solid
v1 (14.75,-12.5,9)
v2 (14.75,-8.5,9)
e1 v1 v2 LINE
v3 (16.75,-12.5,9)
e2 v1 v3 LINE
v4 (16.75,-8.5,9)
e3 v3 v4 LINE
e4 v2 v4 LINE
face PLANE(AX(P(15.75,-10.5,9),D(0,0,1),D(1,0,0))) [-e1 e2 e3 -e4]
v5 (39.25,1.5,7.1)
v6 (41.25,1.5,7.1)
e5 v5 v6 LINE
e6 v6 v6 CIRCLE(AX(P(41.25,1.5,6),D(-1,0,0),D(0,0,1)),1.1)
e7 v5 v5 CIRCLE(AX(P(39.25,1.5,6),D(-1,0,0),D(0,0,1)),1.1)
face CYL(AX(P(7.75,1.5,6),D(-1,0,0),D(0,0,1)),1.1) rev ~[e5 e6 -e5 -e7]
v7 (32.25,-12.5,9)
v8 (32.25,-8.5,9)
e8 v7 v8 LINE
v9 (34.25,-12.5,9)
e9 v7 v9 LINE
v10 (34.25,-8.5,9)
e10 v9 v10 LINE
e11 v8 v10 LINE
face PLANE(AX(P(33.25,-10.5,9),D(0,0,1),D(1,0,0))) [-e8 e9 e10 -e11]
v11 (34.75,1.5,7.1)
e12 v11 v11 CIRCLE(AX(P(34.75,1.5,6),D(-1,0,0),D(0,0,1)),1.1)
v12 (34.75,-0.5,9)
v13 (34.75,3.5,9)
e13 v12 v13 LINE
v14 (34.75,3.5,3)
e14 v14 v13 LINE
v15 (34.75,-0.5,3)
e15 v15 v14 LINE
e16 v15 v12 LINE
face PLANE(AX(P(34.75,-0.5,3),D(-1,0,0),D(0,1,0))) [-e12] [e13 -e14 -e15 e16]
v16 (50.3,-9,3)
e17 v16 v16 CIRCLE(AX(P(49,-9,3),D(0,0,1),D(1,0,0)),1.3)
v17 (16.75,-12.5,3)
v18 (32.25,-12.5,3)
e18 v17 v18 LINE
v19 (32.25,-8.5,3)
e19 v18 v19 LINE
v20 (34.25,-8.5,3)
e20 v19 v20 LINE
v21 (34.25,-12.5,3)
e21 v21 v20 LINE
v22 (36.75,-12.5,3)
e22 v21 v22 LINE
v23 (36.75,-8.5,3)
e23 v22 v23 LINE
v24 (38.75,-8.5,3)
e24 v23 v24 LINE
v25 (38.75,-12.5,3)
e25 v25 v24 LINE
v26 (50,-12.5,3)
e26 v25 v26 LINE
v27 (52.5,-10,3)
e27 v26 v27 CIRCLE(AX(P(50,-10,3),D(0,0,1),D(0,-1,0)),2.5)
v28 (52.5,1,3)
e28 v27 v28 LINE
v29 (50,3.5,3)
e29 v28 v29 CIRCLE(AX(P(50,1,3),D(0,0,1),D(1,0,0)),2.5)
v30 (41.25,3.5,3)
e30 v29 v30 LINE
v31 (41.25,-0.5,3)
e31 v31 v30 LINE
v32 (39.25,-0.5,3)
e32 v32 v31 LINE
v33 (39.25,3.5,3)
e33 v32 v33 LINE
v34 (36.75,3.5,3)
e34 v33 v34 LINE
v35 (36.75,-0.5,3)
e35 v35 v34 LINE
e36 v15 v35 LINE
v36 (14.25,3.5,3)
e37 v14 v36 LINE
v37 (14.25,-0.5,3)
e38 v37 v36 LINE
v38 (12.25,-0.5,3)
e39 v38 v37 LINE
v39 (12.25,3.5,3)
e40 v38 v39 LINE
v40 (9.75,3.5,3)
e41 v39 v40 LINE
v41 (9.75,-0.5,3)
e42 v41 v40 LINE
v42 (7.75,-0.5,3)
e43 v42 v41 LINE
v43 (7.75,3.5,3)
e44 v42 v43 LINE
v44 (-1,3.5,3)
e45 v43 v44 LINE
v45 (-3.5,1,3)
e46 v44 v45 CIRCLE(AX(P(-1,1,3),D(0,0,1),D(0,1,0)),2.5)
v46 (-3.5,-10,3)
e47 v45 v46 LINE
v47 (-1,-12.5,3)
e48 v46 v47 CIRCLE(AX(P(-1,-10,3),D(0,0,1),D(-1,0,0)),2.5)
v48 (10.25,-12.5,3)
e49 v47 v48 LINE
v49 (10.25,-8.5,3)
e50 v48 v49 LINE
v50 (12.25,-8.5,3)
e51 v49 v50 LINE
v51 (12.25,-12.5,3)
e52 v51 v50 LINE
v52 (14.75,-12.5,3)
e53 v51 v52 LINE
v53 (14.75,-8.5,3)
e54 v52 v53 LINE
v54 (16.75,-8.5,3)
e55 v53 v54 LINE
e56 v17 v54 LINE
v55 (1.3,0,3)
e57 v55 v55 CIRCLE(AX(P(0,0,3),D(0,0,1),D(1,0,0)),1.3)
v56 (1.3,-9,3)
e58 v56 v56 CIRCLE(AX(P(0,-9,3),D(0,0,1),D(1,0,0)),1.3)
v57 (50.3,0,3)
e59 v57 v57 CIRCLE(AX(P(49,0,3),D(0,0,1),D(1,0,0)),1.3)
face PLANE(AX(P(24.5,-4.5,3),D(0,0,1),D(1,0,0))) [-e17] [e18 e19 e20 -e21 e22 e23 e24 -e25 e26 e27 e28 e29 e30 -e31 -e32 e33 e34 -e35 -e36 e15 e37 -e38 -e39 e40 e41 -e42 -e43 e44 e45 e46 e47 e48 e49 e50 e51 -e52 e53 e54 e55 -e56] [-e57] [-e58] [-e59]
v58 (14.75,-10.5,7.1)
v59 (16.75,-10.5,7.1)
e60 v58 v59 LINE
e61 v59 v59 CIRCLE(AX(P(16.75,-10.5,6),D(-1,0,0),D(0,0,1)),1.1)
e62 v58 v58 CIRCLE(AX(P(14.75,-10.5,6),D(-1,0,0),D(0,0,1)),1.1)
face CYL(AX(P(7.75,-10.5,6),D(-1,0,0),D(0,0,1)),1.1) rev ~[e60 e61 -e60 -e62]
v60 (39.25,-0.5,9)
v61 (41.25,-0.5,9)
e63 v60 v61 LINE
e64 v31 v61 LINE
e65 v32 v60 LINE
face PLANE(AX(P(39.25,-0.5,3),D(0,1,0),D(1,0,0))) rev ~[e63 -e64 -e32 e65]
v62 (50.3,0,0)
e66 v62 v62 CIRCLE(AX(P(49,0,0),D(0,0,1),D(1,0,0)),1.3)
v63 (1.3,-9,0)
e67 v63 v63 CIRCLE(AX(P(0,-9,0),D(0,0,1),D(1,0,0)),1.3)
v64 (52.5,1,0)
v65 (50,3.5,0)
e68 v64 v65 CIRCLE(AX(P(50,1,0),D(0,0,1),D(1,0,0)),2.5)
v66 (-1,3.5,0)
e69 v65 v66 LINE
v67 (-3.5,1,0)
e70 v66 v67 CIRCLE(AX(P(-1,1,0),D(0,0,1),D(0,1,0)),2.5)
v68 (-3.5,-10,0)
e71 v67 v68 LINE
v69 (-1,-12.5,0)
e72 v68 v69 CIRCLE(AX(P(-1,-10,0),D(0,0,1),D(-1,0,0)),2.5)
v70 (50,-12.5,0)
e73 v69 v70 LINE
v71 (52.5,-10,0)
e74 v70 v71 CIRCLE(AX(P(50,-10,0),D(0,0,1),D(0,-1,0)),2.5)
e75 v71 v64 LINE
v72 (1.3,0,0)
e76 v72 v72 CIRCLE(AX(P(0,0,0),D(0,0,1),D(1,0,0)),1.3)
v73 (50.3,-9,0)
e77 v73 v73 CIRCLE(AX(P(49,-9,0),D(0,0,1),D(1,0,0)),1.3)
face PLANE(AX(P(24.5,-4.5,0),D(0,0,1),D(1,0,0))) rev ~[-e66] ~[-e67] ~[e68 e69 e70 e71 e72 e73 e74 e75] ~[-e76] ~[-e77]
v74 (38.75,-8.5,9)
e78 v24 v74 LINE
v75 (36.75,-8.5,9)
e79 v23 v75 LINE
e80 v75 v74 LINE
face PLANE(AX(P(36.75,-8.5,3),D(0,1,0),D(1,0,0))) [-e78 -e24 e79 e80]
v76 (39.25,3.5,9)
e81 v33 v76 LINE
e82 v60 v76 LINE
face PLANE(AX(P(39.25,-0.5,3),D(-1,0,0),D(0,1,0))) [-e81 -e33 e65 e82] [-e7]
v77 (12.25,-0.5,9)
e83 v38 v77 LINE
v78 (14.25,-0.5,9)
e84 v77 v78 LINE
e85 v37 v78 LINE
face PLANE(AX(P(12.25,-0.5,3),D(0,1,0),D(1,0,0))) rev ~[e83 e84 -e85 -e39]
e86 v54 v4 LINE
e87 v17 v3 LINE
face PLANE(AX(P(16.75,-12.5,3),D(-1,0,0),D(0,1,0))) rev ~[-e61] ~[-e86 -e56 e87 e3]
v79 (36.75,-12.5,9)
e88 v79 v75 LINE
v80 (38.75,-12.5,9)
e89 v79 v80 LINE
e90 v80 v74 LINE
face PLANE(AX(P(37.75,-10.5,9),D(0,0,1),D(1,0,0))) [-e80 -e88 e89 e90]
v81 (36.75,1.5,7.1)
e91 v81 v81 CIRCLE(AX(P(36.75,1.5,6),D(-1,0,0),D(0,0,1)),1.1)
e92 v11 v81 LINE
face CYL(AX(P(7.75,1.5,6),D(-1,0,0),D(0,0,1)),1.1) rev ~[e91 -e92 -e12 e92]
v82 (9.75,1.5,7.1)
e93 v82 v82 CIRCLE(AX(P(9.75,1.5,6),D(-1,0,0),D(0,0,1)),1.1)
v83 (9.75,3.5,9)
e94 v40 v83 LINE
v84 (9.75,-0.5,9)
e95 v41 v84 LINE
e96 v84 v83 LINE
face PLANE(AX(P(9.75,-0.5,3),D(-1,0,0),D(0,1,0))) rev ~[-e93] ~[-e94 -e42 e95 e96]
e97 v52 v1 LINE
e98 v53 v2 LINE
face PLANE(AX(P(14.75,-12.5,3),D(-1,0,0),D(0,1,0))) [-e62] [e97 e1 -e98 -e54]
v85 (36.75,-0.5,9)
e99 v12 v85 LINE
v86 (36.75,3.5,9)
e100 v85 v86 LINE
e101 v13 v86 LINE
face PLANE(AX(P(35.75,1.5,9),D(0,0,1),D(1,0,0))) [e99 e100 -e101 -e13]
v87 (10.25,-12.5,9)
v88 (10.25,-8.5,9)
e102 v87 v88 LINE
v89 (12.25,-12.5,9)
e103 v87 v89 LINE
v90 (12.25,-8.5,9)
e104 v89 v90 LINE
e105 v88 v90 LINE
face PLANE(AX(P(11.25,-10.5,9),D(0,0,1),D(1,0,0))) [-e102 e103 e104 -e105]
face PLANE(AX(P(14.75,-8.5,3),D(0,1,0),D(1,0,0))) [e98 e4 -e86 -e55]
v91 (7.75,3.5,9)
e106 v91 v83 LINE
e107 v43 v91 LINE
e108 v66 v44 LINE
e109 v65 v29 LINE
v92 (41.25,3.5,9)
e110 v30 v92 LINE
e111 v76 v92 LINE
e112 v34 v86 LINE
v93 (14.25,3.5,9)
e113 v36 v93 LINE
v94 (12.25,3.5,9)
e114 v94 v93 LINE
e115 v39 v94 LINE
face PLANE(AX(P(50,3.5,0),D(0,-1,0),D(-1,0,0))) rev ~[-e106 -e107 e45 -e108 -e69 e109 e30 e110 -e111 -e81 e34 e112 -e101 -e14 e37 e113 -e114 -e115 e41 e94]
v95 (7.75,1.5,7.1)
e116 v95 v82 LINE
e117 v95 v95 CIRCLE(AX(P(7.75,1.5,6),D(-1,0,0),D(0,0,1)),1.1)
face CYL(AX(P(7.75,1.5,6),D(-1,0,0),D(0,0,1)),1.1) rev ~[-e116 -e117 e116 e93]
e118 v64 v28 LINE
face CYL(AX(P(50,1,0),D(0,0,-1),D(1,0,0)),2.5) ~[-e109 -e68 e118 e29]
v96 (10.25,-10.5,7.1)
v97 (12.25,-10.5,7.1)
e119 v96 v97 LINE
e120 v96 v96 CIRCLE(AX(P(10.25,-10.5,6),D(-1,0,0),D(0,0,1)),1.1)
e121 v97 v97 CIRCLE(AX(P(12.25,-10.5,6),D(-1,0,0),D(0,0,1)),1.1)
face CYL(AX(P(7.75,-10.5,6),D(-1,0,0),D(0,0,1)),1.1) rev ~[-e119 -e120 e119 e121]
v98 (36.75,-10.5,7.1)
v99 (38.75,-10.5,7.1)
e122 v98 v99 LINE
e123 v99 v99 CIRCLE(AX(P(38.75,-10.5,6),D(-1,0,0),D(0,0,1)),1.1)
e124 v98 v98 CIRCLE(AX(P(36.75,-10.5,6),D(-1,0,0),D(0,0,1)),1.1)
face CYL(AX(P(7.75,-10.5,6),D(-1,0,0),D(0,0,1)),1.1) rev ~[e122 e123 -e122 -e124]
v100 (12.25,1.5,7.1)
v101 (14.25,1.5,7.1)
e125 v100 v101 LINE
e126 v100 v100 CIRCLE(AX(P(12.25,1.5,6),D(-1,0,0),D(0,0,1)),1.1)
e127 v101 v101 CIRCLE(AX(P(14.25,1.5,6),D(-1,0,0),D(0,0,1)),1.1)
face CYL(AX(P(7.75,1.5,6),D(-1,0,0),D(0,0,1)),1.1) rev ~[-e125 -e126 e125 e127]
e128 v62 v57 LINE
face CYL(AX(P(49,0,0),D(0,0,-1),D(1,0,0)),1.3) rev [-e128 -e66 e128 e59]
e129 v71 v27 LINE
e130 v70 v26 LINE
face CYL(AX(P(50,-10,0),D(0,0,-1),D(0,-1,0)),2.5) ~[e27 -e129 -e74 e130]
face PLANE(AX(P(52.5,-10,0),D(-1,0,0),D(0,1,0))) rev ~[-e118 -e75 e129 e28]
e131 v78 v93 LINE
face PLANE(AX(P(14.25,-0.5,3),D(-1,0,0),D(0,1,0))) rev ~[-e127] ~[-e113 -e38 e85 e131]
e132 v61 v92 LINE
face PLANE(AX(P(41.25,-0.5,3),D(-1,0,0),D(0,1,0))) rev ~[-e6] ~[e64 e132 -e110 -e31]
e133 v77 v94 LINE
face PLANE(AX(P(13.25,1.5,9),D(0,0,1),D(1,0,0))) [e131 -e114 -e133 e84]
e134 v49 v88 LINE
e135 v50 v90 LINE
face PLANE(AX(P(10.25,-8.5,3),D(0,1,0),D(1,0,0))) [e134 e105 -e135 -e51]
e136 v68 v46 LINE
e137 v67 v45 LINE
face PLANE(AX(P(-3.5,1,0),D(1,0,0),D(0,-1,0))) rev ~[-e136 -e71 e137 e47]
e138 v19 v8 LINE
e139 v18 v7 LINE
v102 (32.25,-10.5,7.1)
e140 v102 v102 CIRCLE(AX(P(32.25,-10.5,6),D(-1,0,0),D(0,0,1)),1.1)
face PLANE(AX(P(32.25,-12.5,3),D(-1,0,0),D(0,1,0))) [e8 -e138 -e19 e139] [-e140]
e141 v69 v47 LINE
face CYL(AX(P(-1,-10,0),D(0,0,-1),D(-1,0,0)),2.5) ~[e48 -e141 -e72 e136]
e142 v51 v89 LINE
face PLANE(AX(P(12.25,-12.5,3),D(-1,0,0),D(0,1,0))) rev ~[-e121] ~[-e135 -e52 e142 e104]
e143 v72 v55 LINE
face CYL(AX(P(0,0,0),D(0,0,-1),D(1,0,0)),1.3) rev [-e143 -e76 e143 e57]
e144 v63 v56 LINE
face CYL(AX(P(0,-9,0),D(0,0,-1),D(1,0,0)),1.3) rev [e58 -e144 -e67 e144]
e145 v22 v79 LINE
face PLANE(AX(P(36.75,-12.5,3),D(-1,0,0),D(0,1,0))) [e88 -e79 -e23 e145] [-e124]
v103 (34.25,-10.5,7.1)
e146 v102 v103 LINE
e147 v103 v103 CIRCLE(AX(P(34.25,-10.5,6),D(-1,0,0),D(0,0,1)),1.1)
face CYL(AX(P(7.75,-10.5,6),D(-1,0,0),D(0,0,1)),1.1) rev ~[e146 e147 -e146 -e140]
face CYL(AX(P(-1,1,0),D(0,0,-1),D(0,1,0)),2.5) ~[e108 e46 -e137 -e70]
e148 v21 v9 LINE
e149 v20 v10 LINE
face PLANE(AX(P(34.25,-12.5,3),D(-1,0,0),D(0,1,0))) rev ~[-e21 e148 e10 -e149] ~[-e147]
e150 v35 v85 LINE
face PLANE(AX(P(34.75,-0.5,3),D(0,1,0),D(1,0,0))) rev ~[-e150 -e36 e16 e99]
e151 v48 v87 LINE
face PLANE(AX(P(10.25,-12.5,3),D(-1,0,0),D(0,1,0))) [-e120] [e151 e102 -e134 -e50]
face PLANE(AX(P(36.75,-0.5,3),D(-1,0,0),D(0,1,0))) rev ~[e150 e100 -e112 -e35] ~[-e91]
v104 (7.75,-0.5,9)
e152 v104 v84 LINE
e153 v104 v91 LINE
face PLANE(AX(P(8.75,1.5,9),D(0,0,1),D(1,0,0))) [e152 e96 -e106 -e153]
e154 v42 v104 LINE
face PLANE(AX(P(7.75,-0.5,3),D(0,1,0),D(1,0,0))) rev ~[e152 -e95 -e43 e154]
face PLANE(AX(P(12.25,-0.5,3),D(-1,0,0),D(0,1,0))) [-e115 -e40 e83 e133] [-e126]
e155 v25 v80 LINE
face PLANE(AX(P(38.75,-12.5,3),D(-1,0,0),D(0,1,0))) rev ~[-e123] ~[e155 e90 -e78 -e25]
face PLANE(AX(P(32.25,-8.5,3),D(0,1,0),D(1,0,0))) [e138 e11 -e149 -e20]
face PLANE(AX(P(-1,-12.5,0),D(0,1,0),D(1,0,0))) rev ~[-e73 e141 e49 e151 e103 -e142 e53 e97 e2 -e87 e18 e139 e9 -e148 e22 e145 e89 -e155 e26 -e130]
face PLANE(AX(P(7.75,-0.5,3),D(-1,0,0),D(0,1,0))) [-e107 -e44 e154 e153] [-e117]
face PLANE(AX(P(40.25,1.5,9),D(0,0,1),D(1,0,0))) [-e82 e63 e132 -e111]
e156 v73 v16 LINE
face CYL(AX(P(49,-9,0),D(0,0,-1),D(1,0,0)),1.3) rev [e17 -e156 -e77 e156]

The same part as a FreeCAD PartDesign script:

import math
import FreeCAD as App
import Part
import Sketcher

V = App.Vector
Q = App.Units.Quantity


def add_polygon(sketch, points):
    """Adds a closed chain of lines whose ends are joined by coincident constraints."""
    first, n = sketch.GeometryCount, len(points)
    for a, b in zip(points, points[1:] + points[:1]):
        sketch.addGeometry(Part.LineSegment(App.Vector(*a, 0), App.Vector(*b, 0)), False)
    for i in range(n):
        sketch.addConstraint(Sketcher.Constraint("Coincident", first + i, 2, first + (i + 1) % n, 1))

doc = App.newDocument("Part")
body = doc.addObject("PartDesign::Body", "Body")

# Sketch on XY plane
sketch1 = doc.addObject("Sketcher::SketchObject", "Sketch")
body.addObject(sketch1)
sketch1.AttachmentSupport = (doc.XY_Plane, [""])
sketch1.MapMode = "FlatFace"
sketch1.addGeometry(Part.ArcOfCircle(Part.Circle(V(-1, -10, 0), V(0, 0, 1), 2.5), math.radians(180), math.radians(270)), False)
sketch1.addGeometry(Part.LineSegment(V(-1, -12.5, 0), V(50, -12.5, 0)), False)
sketch1.addGeometry(Part.ArcOfCircle(Part.Circle(V(50, -10, 0), V(0, 0, 1), 2.5), math.radians(-90), math.radians(0)), False)
sketch1.addGeometry(Part.LineSegment(V(52.5, -10, 0), V(52.5, 1, 0)), False)
sketch1.addGeometry(Part.ArcOfCircle(Part.Circle(V(50, 1, 0), V(0, 0, 1), 2.5), math.radians(0), math.radians(90)), False)
sketch1.addGeometry(Part.LineSegment(V(50, 3.5, 0), V(-1, 3.5, 0)), False)
sketch1.addGeometry(Part.ArcOfCircle(Part.Circle(V(-1, 1, 0), V(0, 0, 1), 2.5), math.radians(90), math.radians(180)), False)
sketch1.addGeometry(Part.LineSegment(V(-3.5, 1, 0), V(-3.5, -10, 0)), False)
sketch1.addGeometry(Part.Circle(V(0, -9, 0), V(0, 0, 1), 1.3), False)
sketch1.addGeometry(Part.Circle(V(49, -9, 0), V(0, 0, 1), 1.3), False)
sketch1.addGeometry(Part.Circle(V(0, 0, 0), V(0, 0, 1), 1.3), False)
sketch1.addGeometry(Part.Circle(V(49, 0, 0), V(0, 0, 1), 1.3), False)
sketch1.addConstraint(Sketcher.Constraint("Tangent", 0, 2, 1, 1))
sketch1.addConstraint(Sketcher.Constraint("Tangent", 1, 2, 2, 1))
sketch1.addConstraint(Sketcher.Constraint("Tangent", 2, 2, 3, 1))
sketch1.addConstraint(Sketcher.Constraint("Tangent", 3, 2, 4, 1))
sketch1.addConstraint(Sketcher.Constraint("Tangent", 4, 2, 5, 1))
sketch1.addConstraint(Sketcher.Constraint("Tangent", 5, 2, 6, 1))
sketch1.addConstraint(Sketcher.Constraint("Tangent", 6, 2, 7, 1))
sketch1.addConstraint(Sketcher.Constraint("Tangent", 7, 2, 0, 1))
sketch1.addConstraint(Sketcher.Constraint("Horizontal", 1))
sketch1.addConstraint(Sketcher.Constraint("Vertical", 3))
sketch1.addConstraint(Sketcher.Constraint("Horizontal", 5))
sketch1.addConstraint(Sketcher.Constraint("Vertical", 7))
sketch1.addConstraint(Sketcher.Constraint("Coincident", 10, 3, -1, 1))
sketch1.addConstraint(Sketcher.Constraint("Equal", 0, 2))
sketch1.addConstraint(Sketcher.Constraint("Equal", 2, 4))
sketch1.addConstraint(Sketcher.Constraint("Equal", 4, 6))
sketch1.addConstraint(Sketcher.Constraint("Equal", 8, 9))
sketch1.addConstraint(Sketcher.Constraint("Equal", 9, 10))
sketch1.addConstraint(Sketcher.Constraint("Equal", 10, 11))
sketch1.addConstraint(Sketcher.Constraint("PointOnObject", 8, 3, -2))
sketch1.addConstraint(Sketcher.Constraint("PointOnObject", 11, 3, -1))
sketch1.addConstraint(Sketcher.Constraint("Horizontal", 8, 3, 9, 3))
sketch1.addConstraint(Sketcher.Constraint("Vertical", 9, 3, 11, 3))
sketch1.addConstraint(Sketcher.Constraint("Diameter", 8, Q("2.6 mm")))
sketch1.addConstraint(Sketcher.Constraint("Radius", 0, Q("2.5 mm")))
sketch1.addConstraint(Sketcher.Constraint("DistanceX", 1, 1, 1, 2, Q("51 mm")))
sketch1.addConstraint(Sketcher.Constraint("DistanceY", 3, 1, 3, 2, Q("11 mm")))
sketch1.addConstraint(Sketcher.Constraint("DistanceX", 0, 3, -1, 1, Q("1 mm")))
sketch1.addConstraint(Sketcher.Constraint("DistanceY", 0, 3, -1, 1, Q("10 mm")))
sketch1.addConstraint(Sketcher.Constraint("DistanceY", 8, 3, -1, 1, Q("9 mm")))
sketch1.addConstraint(Sketcher.Constraint("DistanceX", -1, 1, 9, 3, Q("49 mm")))
pad1 = doc.addObject("PartDesign::Pad", "Pad")
body.addObject(pad1)
pad1.Profile = sketch1
pad1.Length = 3

# Sketch on XY plane
sketch2 = doc.addObject("Sketcher::SketchObject", "Sketch001")
body.addObject(sketch2)
sketch2.AttachmentSupport = (doc.XY_Plane, [""])
sketch2.MapMode = "FlatFace"
sketch2.AttachmentOffset = App.Placement(V(0, 0, 3), App.Rotation())
add_polygon(sketch2, [(7.75, 3.5), (7.75, -0.5), (9.75, -0.5), (9.75, 3.5)])  # lines 0-3
add_polygon(sketch2, [(12.25, 3.5), (12.25, -0.5), (14.25, -0.5), (14.25, 3.5)])  # lines 4-7
add_polygon(sketch2, [(34.75, 3.5), (34.75, -0.5), (36.75, -0.5), (36.75, 3.5)])  # lines 8-11
add_polygon(sketch2, [(39.25, 3.5), (39.25, -0.5), (41.25, -0.5), (41.25, 3.5)])  # lines 12-15
add_polygon(sketch2, [(10.25, -8.5), (10.25, -12.5), (12.25, -12.5), (12.25, -8.5)])  # lines 16-19
add_polygon(sketch2, [(14.75, -8.5), (14.75, -12.5), (16.75, -12.5), (16.75, -8.5)])  # lines 20-23
add_polygon(sketch2, [(32.25, -8.5), (32.25, -12.5), (34.25, -12.5), (34.25, -8.5)])  # lines 24-27
add_polygon(sketch2, [(36.75, -8.5), (36.75, -12.5), (38.75, -12.5), (38.75, -8.5)])  # lines 28-31
sketch2.addConstraint(Sketcher.Constraint("Vertical", 0))
sketch2.addConstraint(Sketcher.Constraint("Horizontal", 1))
sketch2.addConstraint(Sketcher.Constraint("Vertical", 2))
sketch2.addConstraint(Sketcher.Constraint("Horizontal", 3))
sketch2.addConstraint(Sketcher.Constraint("Vertical", 4))
sketch2.addConstraint(Sketcher.Constraint("Horizontal", 5))
sketch2.addConstraint(Sketcher.Constraint("Vertical", 6))
sketch2.addConstraint(Sketcher.Constraint("Horizontal", 7))
sketch2.addConstraint(Sketcher.Constraint("Vertical", 8))
sketch2.addConstraint(Sketcher.Constraint("Horizontal", 9))
sketch2.addConstraint(Sketcher.Constraint("Vertical", 10))
sketch2.addConstraint(Sketcher.Constraint("Horizontal", 11))
sketch2.addConstraint(Sketcher.Constraint("Vertical", 12))
sketch2.addConstraint(Sketcher.Constraint("Horizontal", 13))
sketch2.addConstraint(Sketcher.Constraint("Vertical", 14))
sketch2.addConstraint(Sketcher.Constraint("Horizontal", 15))
sketch2.addConstraint(Sketcher.Constraint("Vertical", 16))
sketch2.addConstraint(Sketcher.Constraint("Horizontal", 17))
sketch2.addConstraint(Sketcher.Constraint("Vertical", 18))
sketch2.addConstraint(Sketcher.Constraint("Horizontal", 19))
sketch2.addConstraint(Sketcher.Constraint("Vertical", 20))
sketch2.addConstraint(Sketcher.Constraint("Horizontal", 21))
sketch2.addConstraint(Sketcher.Constraint("Vertical", 22))
sketch2.addConstraint(Sketcher.Constraint("Horizontal", 23))
sketch2.addConstraint(Sketcher.Constraint("Vertical", 24))
sketch2.addConstraint(Sketcher.Constraint("Horizontal", 25))
sketch2.addConstraint(Sketcher.Constraint("Vertical", 26))
sketch2.addConstraint(Sketcher.Constraint("Horizontal", 27))
sketch2.addConstraint(Sketcher.Constraint("Vertical", 28))
sketch2.addConstraint(Sketcher.Constraint("Horizontal", 29))
sketch2.addConstraint(Sketcher.Constraint("Vertical", 30))
sketch2.addConstraint(Sketcher.Constraint("Horizontal", 31))
sketch2.addConstraint(Sketcher.Constraint("Horizontal", 1, 2, 4, 2))
sketch2.addConstraint(Sketcher.Constraint("Horizontal", 3, 2, 6, 2))
sketch2.addConstraint(Sketcher.Constraint("Horizontal", 5, 2, 8, 2))
sketch2.addConstraint(Sketcher.Constraint("Horizontal", 7, 2, 10, 2))
sketch2.addConstraint(Sketcher.Constraint("Horizontal", 9, 2, 12, 2))
sketch2.addConstraint(Sketcher.Constraint("Horizontal", 11, 2, 14, 2))
sketch2.addConstraint(Sketcher.Constraint("Horizontal", 17, 2, 20, 2))
sketch2.addConstraint(Sketcher.Constraint("Horizontal", 19, 2, 22, 2))
sketch2.addConstraint(Sketcher.Constraint("Horizontal", 21, 2, 24, 2))
sketch2.addConstraint(Sketcher.Constraint("Horizontal", 23, 2, 26, 2))
sketch2.addConstraint(Sketcher.Constraint("Horizontal", 25, 2, 28, 2))
sketch2.addConstraint(Sketcher.Constraint("Horizontal", 27, 2, 30, 2))
sketch2.addConstraint(Sketcher.Constraint("Vertical", 7, 2, 17, 2))
sketch2.addConstraint(Sketcher.Constraint("Vertical", 10, 2, 28, 2))
sketch2.addConstraint(Sketcher.Constraint("Equal", 3, 5))
sketch2.addConstraint(Sketcher.Constraint("Equal", 7, 9))
sketch2.addConstraint(Sketcher.Constraint("Equal", 11, 13))
sketch2.addConstraint(Sketcher.Constraint("Equal", 15, 17))
sketch2.addConstraint(Sketcher.Constraint("Equal", 19, 21))
sketch2.addConstraint(Sketcher.Constraint("Equal", 23, 25))
sketch2.addConstraint(Sketcher.Constraint("Equal", 27, 29))
sketch2.addConstraint(Sketcher.Constraint("Equal", 14, 16))
sketch2.addConstraint(Sketcher.Constraint("DistanceX", 1, 1, 1, 2, Q("2 mm")))
sketch2.addConstraint(Sketcher.Constraint("DistanceY", 0, 2, 0, 1, Q("4 mm")))
sketch2.addConstraint(Sketcher.Constraint("DistanceX", 1, 2, 8, 2, Q("25 mm")))
sketch2.addConstraint(Sketcher.Constraint("DistanceX", 5, 2, 12, 2, Q("25 mm")))
sketch2.addConstraint(Sketcher.Constraint("DistanceY", 16, 2, 1, 2, Q("12 mm")))
sketch2.addConstraint(Sketcher.Constraint("DistanceX", 24, 2, 12, 2, Q("7 mm")))
sketch2.addConstraint(Sketcher.Constraint("DistanceY", 0, 2, -1, 1, Q("0.5 mm")))
sketch2.addConstraint(Sketcher.Constraint("DistanceX", 1, 2, 4, 2, Q("2.5 mm")))
sketch2.addConstraint(Sketcher.Constraint("DistanceX", 17, 2, 20, 2, Q("2.5 mm")))
sketch2.addConstraint(Sketcher.Constraint("DistanceX", -1, 1, 0, 2, Q("7.75 mm")))
pad2 = doc.addObject("PartDesign::Pad", "Pad001")
body.addObject(pad2)
pad2.Profile = sketch2
pad2.Length = 6

# Sketch on YZ plane
sketch3 = doc.addObject("Sketcher::SketchObject", "Sketch002")
body.addObject(sketch3)
sketch3.AttachmentSupport = (doc.YZ_Plane, [""])
sketch3.MapMode = "FlatFace"
sketch3.AttachmentOffset = App.Placement(V(0, 0, 7.75), App.Rotation())
sketch3.addGeometry(Part.Circle(V(1.5, 6, 0), V(0, 0, 1), 1.1), False)
sketch3.addGeometry(Part.Circle(V(-10.5, 6, 0), V(0, 0, 1), 1.1), False)
sketch3.addConstraint(Sketcher.Constraint("Equal", 0, 1))
sketch3.addConstraint(Sketcher.Constraint("Horizontal", 0, 3, 1, 3))
sketch3.addConstraint(Sketcher.Constraint("Diameter", 0, Q("2.2 mm")))
sketch3.addConstraint(Sketcher.Constraint("DistanceY", -1, 1, 0, 3, Q("6 mm")))
sketch3.addConstraint(Sketcher.Constraint("DistanceX", 1, 3, 0, 3, Q("12 mm")))
sketch3.addConstraint(Sketcher.Constraint("DistanceX", -1, 1, 0, 3, Q("1.5 mm")))
pocket1 = doc.addObject("PartDesign::Pocket", "Pocket")
body.addObject(pocket1)
pocket1.Profile = sketch3
pocket1.Type = "ThroughAll"
pocket1.Reversed = True

doc.recompute()
